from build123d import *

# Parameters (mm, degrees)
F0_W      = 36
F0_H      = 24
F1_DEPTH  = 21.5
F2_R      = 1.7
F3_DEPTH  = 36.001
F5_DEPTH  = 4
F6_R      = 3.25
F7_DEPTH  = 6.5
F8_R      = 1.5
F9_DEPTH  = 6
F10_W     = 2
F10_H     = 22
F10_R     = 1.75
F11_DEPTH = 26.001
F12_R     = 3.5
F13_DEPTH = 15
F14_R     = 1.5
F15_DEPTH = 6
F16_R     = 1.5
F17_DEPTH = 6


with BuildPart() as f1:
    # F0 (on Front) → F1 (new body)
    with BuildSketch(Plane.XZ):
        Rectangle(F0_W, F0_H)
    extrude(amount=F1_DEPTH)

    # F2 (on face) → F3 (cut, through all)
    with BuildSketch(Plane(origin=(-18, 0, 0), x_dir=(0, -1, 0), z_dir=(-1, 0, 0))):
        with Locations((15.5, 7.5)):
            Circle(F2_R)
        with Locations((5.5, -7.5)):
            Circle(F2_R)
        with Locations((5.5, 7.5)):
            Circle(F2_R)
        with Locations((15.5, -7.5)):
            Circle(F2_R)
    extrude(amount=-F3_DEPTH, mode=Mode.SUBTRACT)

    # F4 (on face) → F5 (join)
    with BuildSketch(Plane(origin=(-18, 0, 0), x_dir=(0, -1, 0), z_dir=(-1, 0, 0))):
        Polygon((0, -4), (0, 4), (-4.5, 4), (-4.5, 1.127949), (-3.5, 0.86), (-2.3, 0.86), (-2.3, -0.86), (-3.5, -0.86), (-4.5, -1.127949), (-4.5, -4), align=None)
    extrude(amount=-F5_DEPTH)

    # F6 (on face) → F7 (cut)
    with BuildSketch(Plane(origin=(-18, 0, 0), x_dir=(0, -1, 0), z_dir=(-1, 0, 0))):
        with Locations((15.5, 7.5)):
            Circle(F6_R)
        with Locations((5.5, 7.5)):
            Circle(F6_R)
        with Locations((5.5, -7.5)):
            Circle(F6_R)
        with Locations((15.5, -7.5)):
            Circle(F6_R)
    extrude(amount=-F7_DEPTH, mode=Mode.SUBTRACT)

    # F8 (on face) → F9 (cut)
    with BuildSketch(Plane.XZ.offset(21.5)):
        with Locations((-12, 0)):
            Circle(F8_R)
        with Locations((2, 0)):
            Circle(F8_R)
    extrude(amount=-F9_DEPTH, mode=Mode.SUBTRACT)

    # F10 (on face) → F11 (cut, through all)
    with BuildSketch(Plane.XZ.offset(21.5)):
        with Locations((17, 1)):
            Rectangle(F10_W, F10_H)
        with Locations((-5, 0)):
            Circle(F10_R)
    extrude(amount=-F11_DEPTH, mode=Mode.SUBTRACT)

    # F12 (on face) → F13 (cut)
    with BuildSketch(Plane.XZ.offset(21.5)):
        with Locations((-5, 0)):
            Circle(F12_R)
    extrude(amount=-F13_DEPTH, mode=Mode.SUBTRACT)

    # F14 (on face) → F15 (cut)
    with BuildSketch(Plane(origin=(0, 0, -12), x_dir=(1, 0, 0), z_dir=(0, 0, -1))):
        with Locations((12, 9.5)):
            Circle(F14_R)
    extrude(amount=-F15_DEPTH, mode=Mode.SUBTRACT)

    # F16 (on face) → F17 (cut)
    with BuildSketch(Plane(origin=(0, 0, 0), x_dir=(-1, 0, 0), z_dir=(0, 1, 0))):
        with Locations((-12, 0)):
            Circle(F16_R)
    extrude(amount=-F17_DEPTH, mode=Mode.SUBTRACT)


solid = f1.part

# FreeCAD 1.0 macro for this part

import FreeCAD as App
import Part
import Sketcher
from FreeCAD import Vector
Q = App.Units.Quantity

doc = App.newDocument("Part")
params = doc.addObject("Spreadsheet::Sheet", "Params")
for row, (alias, value) in enumerate([
    ("sketch1_width", "36 mm"),
    ("sketch1_height", "24 mm"),
    ("pad1_length", "21.5 mm"),
    ("sketch2_diameter", "3.4 mm"),
    ("sketch3_height", "8 mm"),
    ("sketch3_width", "4.5 mm"),
    ("sketch3_width2", "1.2 mm"),
    ("sketch3_height2", "1.72 mm"),
    ("pad2_length", "4 mm"),
    ("sketch4_diameter", "6.5 mm"),
    ("pocket2_length", "6.5 mm"),
    ("sketch5_diameter", "3 mm"),
    ("pocket3_length", "6 mm"),
    ("sketch6_diameter", "3.5 mm"),
    ("sketch6_width", "2 mm"),
    ("sketch6_height", "22 mm"),
    ("sketch7_diameter", "7 mm"),
    ("pocket5_length", "15 mm"),
    ("sketch8_diameter", "3 mm"),
    ("pocket6_length", "6 mm"),
    ("sketch9_diameter", "3 mm"),
    ("pocket7_length", "6 mm"),
], start=1):
    params.set(f"A{row}", alias)
    params.set(f"B{row}", "=" + value)
    params.setAlias(f"B{row}", alias)

body = doc.addObject("PartDesign::Body", "Body")

sketch1 = body.newObject("Sketcher::SketchObject", "Sketch")
sketch1.AttachmentSupport = (doc.getObject("XZ_Plane"), [""])
sketch1.MapMode = "FlatFace"
sketch1.addGeometry(Part.LineSegment(Vector(-18, 12, 0), Vector(-18, -12, 0)), False)
sketch1.addGeometry(Part.LineSegment(Vector(-18, -12, 0), Vector(18, -12, 0)), False)
sketch1.addGeometry(Part.LineSegment(Vector(18, -12, 0), Vector(18, 12, 0)), False)
sketch1.addGeometry(Part.LineSegment(Vector(18, 12, 0), Vector(-18, 12, 0)), False)
sketch1.addConstraint(Sketcher.Constraint("Coincident", 0, 2, 1, 1))
sketch1.addConstraint(Sketcher.Constraint("Coincident", 1, 2, 2, 1))
sketch1.addConstraint(Sketcher.Constraint("Coincident", 2, 2, 3, 1))
sketch1.addConstraint(Sketcher.Constraint("Coincident", 3, 2, 0, 1))
sketch1.addConstraint(Sketcher.Constraint("Vertical", 0))
sketch1.addConstraint(Sketcher.Constraint("Horizontal", 1))
sketch1.addConstraint(Sketcher.Constraint("Vertical", 2))
sketch1.addConstraint(Sketcher.Constraint("Horizontal", 3))
sketch1.addConstraint(Sketcher.Constraint("Symmetric", 0, 2, 2, 2, -1, 1))
sketch1.addConstraint(Sketcher.Constraint("DistanceX", 1, 1, 1, 2, Q("36 mm")))
sketch1.addConstraint(Sketcher.Constraint("DistanceY", 0, 2, 0, 1, Q("24 mm")))
sketch1.setExpression("Constraints[9]", "Params.sketch1_width")
sketch1.setExpression("Constraints[10]", "Params.sketch1_height")
pad1 = body.newObject("PartDesign::Pad", "Pad")
pad1.Profile = sketch1
pad1.setExpression("Length", "Params.pad1_length")

sketch2 = body.newObject("Sketcher::SketchObject", "Sketch001")
sketch2.AttachmentSupport = (doc.getObject("YZ_Plane"), [""])
sketch2.MapMode = "FlatFace"
sketch2.AttachmentOffset = App.Placement(Vector(0, 0, -18), App.Rotation())
sketch2.addGeometry(Part.Circle(Vector(-15.5, 7.5, 0), Vector(0, 0, 1), 1.7), False)
sketch2.addGeometry(Part.Circle(Vector(-5.5, -7.5, 0), Vector(0, 0, 1), 1.7), False)
sketch2.addGeometry(Part.Circle(Vector(-5.5, 7.5, 0), Vector(0, 0, 1), 1.7), False)
sketch2.addGeometry(Part.Circle(Vector(-15.5, -7.5, 0), Vector(0, 0, 1), 1.7), False)
sketch2.addConstraint(Sketcher.Constraint("Equal", 0, 1))
sketch2.addConstraint(Sketcher.Constraint("Equal", 1, 2))
sketch2.addConstraint(Sketcher.Constraint("Equal", 2, 3))
sketch2.addConstraint(Sketcher.Constraint("Symmetric", 1, 3, 2, 3, -1))
sketch2.addConstraint(Sketcher.Constraint("Symmetric", 0, 3, 3, 3, -1))
sketch2.addConstraint(Sketcher.Constraint("Horizontal", 0, 3, 2, 3))
sketch2.addConstraint(Sketcher.Constraint("Diameter", 0, Q("3.4 mm")))
sketch2.addConstraint(Sketcher.Constraint("DistanceX", 0, 3, 1, 3, Q("10 mm")))
sketch2.addConstraint(Sketcher.Constraint("DistanceY", 1, 3, 0, 3, Q("15 mm")))
sketch2.addConstraint(Sketcher.Constraint("DistanceX", 0, 3, -1, 1, Q("15.5 mm")))
sketch2.setExpression("Constraints[6]", "Params.sketch2_diameter")
pocket1 = body.newObject("PartDesign::Pocket", "Pocket")
pocket1.Profile = sketch2
pocket1.Type = "ThroughAll"
pocket1.Reversed = True

sketch3 = body.newObject("Sketcher::SketchObject", "Sketch002")
sketch3.AttachmentSupport = (doc.getObject("YZ_Plane"), [""])
sketch3.MapMode = "FlatFace"
sketch3.AttachmentOffset = App.Placement(Vector(0, 0, -18), App.Rotation())
sketch3.addGeometry(Part.LineSegment(Vector(0, -4, 0), Vector(0, 4, 0)), False)
sketch3.addGeometry(Part.LineSegment(Vector(0, 4, 0), Vector(4.5, 4, 0)), False)
sketch3.addGeometry(Part.LineSegment(Vector(4.5, 4, 0), Vector(4.5, 1.1, 0)), False)
sketch3.addGeometry(Part.LineSegment(Vector(4.5, 1.1, 0), Vector(3.5, 0.9, 0)), False)
sketch3.addGeometry(Part.LineSegment(Vector(3.5, 0.9, 0), Vector(2.3, 0.9, 0)), False)
sketch3.addGeometry(Part.LineSegment(Vector(2.3, 0.9, 0), Vector(2.3, -0.9, 0)), False)
sketch3.addGeometry(Part.LineSegment(Vector(2.3, -0.9, 0), Vector(3.5, -0.9, 0)), False)
sketch3.addGeometry(Part.LineSegment(Vector(3.5, -0.9, 0), Vector(4.5, -1.1, 0)), False)
sketch3.addGeometry(Part.LineSegment(Vector(4.5, -1.1, 0), Vector(4.5, -4, 0)), False)
sketch3.addGeometry(Part.LineSegment(Vector(4.5, -4, 0), Vector(0, -4, 0)), False)
sketch3.addConstraint(Sketcher.Constraint("Coincident", 0, 2, 1, 1))
sketch3.addConstraint(Sketcher.Constraint("Coincident", 1, 2, 2, 1))
sketch3.addConstraint(Sketcher.Constraint("Coincident", 2, 2, 3, 1))
sketch3.addConstraint(Sketcher.Constraint("Coincident", 3, 2, 4, 1))
sketch3.addConstraint(Sketcher.Constraint("Coincident", 4, 2, 5, 1))
sketch3.addConstraint(Sketcher.Constraint("Coincident", 5, 2, 6, 1))
sketch3.addConstraint(Sketcher.Constraint("Coincident", 6, 2, 7, 1))
sketch3.addConstraint(Sketcher.Constraint("Coincident", 7, 2, 8, 1))
sketch3.addConstraint(Sketcher.Constraint("Coincident", 8, 2, 9, 1))
sketch3.addConstraint(Sketcher.Constraint("Coincident", 9, 2, 0, 1))
sketch3.addConstraint(Sketcher.Constraint("Vertical", 0))
sketch3.addConstraint(Sketcher.Constraint("Horizontal", 1))
sketch3.addConstraint(Sketcher.Constraint("Vertical", 2))
sketch3.addConstraint(Sketcher.Constraint("Horizontal", 4))
sketch3.addConstraint(Sketcher.Constraint("Vertical", 5))
sketch3.addConstraint(Sketcher.Constraint("Horizontal", 6))
sketch3.addConstraint(Sketcher.Constraint("Vertical", 8))
sketch3.addConstraint(Sketcher.Constraint("Horizontal", 9))
sketch3.addConstraint(Sketcher.Constraint("Symmetric", 0, 2, 9, 2, -1, 1))
sketch3.addConstraint(Sketcher.Constraint("Symmetric", 3, 2, 6, 2, -1))
sketch3.addConstraint(Sketcher.Constraint("Symmetric", 2, 2, 7, 2, -1))
sketch3.addConstraint(Sketcher.Constraint("DistanceY", 0, 1, 0, 2, Q("8 mm")))
sketch3.addConstraint(Sketcher.Constraint("Angle", 3, Q("-165.00001 deg")))
sketch3.addConstraint(Sketcher.Constraint("DistanceX", 1, 1, 1, 2, Q("4.5 mm")))
sketch3.addConstraint(Sketcher.Constraint("DistanceX", 4, 2, 4, 1, Q("1.2 mm")))
sketch3.addConstraint(Sketcher.Constraint("DistanceX", 3, 2, 2, 2, Q("1 mm")))
sketch3.addConstraint(Sketcher.Constraint("DistanceY", 5, 2, 5, 1, Q("1.72 mm")))
sketch3.setExpression("Constraints[21]", "Params.sketch3_height")
sketch3.setExpression("Constraints[23]", "Params.sketch3_width")
sketch3.setExpression("Constraints[24]", "Params.sketch3_width2")
sketch3.setExpression("Constraints[26]", "Params.sketch3_height2")
pad2 = body.newObject("PartDesign::Pad", "Pad001")
pad2.Profile = sketch3
pad2.setExpression("Length", "Params.pad2_length")

sketch4 = body.newObject("Sketcher::SketchObject", "Sketch003")
sketch4.AttachmentSupport = (doc.getObject("YZ_Plane"), [""])
sketch4.MapMode = "FlatFace"
sketch4.AttachmentOffset = App.Placement(Vector(0, 0, -18), App.Rotation())
sketch4.addGeometry(Part.Circle(Vector(-15.5, 7.5, 0), Vector(0, 0, 1), 3.2), False)
sketch4.addGeometry(Part.Circle(Vector(-5.5, 7.5, 0), Vector(0, 0, 1), 3.2), False)
sketch4.addGeometry(Part.Circle(Vector(-5.5, -7.5, 0), Vector(0, 0, 1), 3.2), False)
sketch4.addGeometry(Part.Circle(Vector(-15.5, -7.5, 0), Vector(0, 0, 1), 3.2), False)
sketch4.addConstraint(Sketcher.Constraint("Equal", 0, 1))
sketch4.addConstraint(Sketcher.Constraint("Equal", 1, 2))
sketch4.addConstraint(Sketcher.Constraint("Equal", 2, 3))
sketch4.addConstraint(Sketcher.Constraint("Symmetric", 1, 3, 2, 3, -1))
sketch4.addConstraint(Sketcher.Constraint("Symmetric", 0, 3, 3, 3, -1))
sketch4.addConstraint(Sketcher.Constraint("Horizontal", 0, 3, 1, 3))
sketch4.addConstraint(Sketcher.Constraint("Diameter", 0, Q("6.5 mm")))
sketch4.addConstraint(Sketcher.Constraint("DistanceX", 0, 3, 1, 3, Q("10 mm")))
sketch4.addConstraint(Sketcher.Constraint("DistanceY", 2, 3, 1, 3, Q("15 mm")))
sketch4.addConstraint(Sketcher.Constraint("DistanceX", 0, 3, -1, 1, Q("15.5 mm")))
sketch4.setExpression("Constraints[6]", "Params.sketch4_diameter")
pocket2 = body.newObject("PartDesign::Pocket", "Pocket001")
pocket2.Profile = sketch4
pocket2.setExpression("Length", "Params.pocket2_length")
pocket2.Reversed = True

sketch5 = body.newObject("Sketcher::SketchObject", "Sketch004")
sketch5.AttachmentSupport = (doc.getObject("XZ_Plane"), [""])
sketch5.MapMode = "FlatFace"
sketch5.AttachmentOffset = App.Placement(Vector(0, 0, 21.5), App.Rotation())
sketch5.addGeometry(Part.Circle(Vector(-12, 0, 0), Vector(0, 0, 1), 1.5), False)
sketch5.addGeometry(Part.Circle(Vector(2, 0, 0), Vector(0, 0, 1), 1.5), False)
sketch5.addConstraint(Sketcher.Constraint("Equal", 0, 1))
sketch5.addConstraint(Sketcher.Constraint("PointOnObject", 0, 3, -1))
sketch5.addConstraint(Sketcher.Constraint("PointOnObject", 1, 3, -1))
sketch5.addConstraint(Sketcher.Constraint("Diameter", 0, Q("3 mm")))
sketch5.addConstraint(Sketcher.Constraint("DistanceX", 0, 3, -1, 1, Q("12 mm")))
sketch5.addConstraint(Sketcher.Constraint("DistanceX", -1, 1, 1, 3, Q("2 mm")))
sketch5.setExpression("Constraints[3]", "Params.sketch5_diameter")
pocket3 = body.newObject("PartDesign::Pocket", "Pocket002")
pocket3.Profile = sketch5
pocket3.setExpression("Length", "Params.pocket3_length")

sketch6 = body.newObject("Sketcher::SketchObject", "Sketch005")
sketch6.AttachmentSupport = (doc.getObject("XZ_Plane"), [""])
sketch6.MapMode = "FlatFace"
sketch6.AttachmentOffset = App.Placement(Vector(0, 0, 21.5), App.Rotation())
sketch6.addGeometry(Part.LineSegment(Vector(16, 12, 0), Vector(16, -10, 0)), False)
sketch6.addGeometry(Part.LineSegment(Vector(16, -10, 0), Vector(18, -10, 0)), False)
sketch6.addGeometry(Part.LineSegment(Vector(18, -10, 0), Vector(18, 12, 0)), False)
sketch6.addGeometry(Part.LineSegment(Vector(18, 12, 0), Vector(16, 12, 0)), False)
sketch6.addGeometry(Part.Circle(Vector(-5, 0, 0), Vector(0, 0, 1), 1.8), False)
sketch6.addConstraint(Sketcher.Constraint("Coincident", 0, 2, 1, 1))
sketch6.addConstraint(Sketcher.Constraint("Coincident", 1, 2, 2, 1))
sketch6.addConstraint(Sketcher.Constraint("Coincident", 2, 2, 3, 1))
sketch6.addConstraint(Sketcher.Constraint("Coincident", 3, 2, 0, 1))
sketch6.addConstraint(Sketcher.Constraint("Vertical", 0))
sketch6.addConstraint(Sketcher.Constraint("Horizontal", 1))
sketch6.addConstraint(Sketcher.Constraint("Vertical", 2))
sketch6.addConstraint(Sketcher.Constraint("Horizontal", 3))
sketch6.addConstraint(Sketcher.Constraint("PointOnObject", 4, 3, -1))
sketch6.addConstraint(Sketcher.Constraint("Diameter", 4, Q("3.5 mm")))
sketch6.addConstraint(Sketcher.Constraint("DistanceX", 1, 1, 1, 2, Q("2 mm")))
sketch6.addConstraint(Sketcher.Constraint("DistanceY", 0, 2, 0, 1, Q("22 mm")))
sketch6.addConstraint(Sketcher.Constraint("DistanceX", 4, 3, -1, 1, Q("5 mm")))
sketch6.addConstraint(Sketcher.Constraint("DistanceX", -1, 1, 0, 2, Q("16 mm")))
sketch6.addConstraint(Sketcher.Constraint("DistanceY", 0, 2, -1, 1, Q("10 mm")))
sketch6.setExpression("Constraints[9]", "Params.sketch6_diameter")
sketch6.setExpression("Constraints[10]", "Params.sketch6_width")
sketch6.setExpression("Constraints[11]", "Params.sketch6_height")
pocket4 = body.newObject("PartDesign::Pocket", "Pocket003")
pocket4.Profile = sketch6
pocket4.Type = "ThroughAll"

sketch7 = body.newObject("Sketcher::SketchObject", "Sketch006")
sketch7.AttachmentSupport = (doc.getObject("XZ_Plane"), [""])
sketch7.MapMode = "FlatFace"
sketch7.AttachmentOffset = App.Placement(Vector(0, 0, 21.5), App.Rotation())
sketch7.addGeometry(Part.Circle(Vector(-5, 0, 0), Vector(0, 0, 1), 3.5), False)
sketch7.addConstraint(Sketcher.Constraint("PointOnObject", 0, 3, -1))
sketch7.addConstraint(Sketcher.Constraint("Diameter", 0, Q("7 mm")))
sketch7.addConstraint(Sketcher.Constraint("DistanceX", 0, 3, -1, 1, Q("5 mm")))
sketch7.setExpression("Constraints[1]", "Params.sketch7_diameter")
pocket5 = body.newObject("PartDesign::Pocket", "Pocket004")
pocket5.Profile = sketch7
pocket5.setExpression("Length", "Params.pocket5_length")

sketch8 = body.newObject("Sketcher::SketchObject", "Sketch007")
sketch8.AttachmentSupport = (doc.getObject("XY_Plane"), [""])
sketch8.MapMode = "FlatFace"
sketch8.AttachmentOffset = App.Placement(Vector(0, 0, -12), App.Rotation())
sketch8.addGeometry(Part.Circle(Vector(12, -9.5, 0), Vector(0, 0, 1), 1.5), False)
sketch8.addConstraint(Sketcher.Constraint("Diameter", 0, Q("3 mm")))
sketch8.addConstraint(Sketcher.Constraint("DistanceX", -1, 1, 0, 3, Q("12 mm")))
sketch8.addConstraint(Sketcher.Constraint("DistanceY", 0, 3, -1, 1, Q("9.5 mm")))
sketch8.setExpression("Constraints[0]", "Params.sketch8_diameter")
pocket6 = body.newObject("PartDesign::Pocket", "Pocket005")
pocket6.Profile = sketch8
pocket6.setExpression("Length", "Params.pocket6_length")
pocket6.Reversed = True

sketch9 = body.newObject("Sketcher::SketchObject", "Sketch008")
sketch9.AttachmentSupport = (doc.getObject("XZ_Plane"), [""])
sketch9.MapMode = "FlatFace"
sketch9.addGeometry(Part.Circle(Vector(12, 0, 0), Vector(0, 0, 1), 1.5), False)
sketch9.addConstraint(Sketcher.Constraint("PointOnObject", 0, 3, -1))
sketch9.addConstraint(Sketcher.Constraint("Diameter", 0, Q("3 mm")))
sketch9.addConstraint(Sketcher.Constraint("DistanceX", -1, 1, 0, 3, Q("12 mm")))
sketch9.setExpression("Constraints[1]", "Params.sketch9_diameter")
pocket7 = body.newObject("PartDesign::Pocket", "Pocket006")
pocket7.Profile = sketch9
pocket7.setExpression("Length", "Params.pocket7_length")
pocket7.Reversed = True

doc.recompute()
